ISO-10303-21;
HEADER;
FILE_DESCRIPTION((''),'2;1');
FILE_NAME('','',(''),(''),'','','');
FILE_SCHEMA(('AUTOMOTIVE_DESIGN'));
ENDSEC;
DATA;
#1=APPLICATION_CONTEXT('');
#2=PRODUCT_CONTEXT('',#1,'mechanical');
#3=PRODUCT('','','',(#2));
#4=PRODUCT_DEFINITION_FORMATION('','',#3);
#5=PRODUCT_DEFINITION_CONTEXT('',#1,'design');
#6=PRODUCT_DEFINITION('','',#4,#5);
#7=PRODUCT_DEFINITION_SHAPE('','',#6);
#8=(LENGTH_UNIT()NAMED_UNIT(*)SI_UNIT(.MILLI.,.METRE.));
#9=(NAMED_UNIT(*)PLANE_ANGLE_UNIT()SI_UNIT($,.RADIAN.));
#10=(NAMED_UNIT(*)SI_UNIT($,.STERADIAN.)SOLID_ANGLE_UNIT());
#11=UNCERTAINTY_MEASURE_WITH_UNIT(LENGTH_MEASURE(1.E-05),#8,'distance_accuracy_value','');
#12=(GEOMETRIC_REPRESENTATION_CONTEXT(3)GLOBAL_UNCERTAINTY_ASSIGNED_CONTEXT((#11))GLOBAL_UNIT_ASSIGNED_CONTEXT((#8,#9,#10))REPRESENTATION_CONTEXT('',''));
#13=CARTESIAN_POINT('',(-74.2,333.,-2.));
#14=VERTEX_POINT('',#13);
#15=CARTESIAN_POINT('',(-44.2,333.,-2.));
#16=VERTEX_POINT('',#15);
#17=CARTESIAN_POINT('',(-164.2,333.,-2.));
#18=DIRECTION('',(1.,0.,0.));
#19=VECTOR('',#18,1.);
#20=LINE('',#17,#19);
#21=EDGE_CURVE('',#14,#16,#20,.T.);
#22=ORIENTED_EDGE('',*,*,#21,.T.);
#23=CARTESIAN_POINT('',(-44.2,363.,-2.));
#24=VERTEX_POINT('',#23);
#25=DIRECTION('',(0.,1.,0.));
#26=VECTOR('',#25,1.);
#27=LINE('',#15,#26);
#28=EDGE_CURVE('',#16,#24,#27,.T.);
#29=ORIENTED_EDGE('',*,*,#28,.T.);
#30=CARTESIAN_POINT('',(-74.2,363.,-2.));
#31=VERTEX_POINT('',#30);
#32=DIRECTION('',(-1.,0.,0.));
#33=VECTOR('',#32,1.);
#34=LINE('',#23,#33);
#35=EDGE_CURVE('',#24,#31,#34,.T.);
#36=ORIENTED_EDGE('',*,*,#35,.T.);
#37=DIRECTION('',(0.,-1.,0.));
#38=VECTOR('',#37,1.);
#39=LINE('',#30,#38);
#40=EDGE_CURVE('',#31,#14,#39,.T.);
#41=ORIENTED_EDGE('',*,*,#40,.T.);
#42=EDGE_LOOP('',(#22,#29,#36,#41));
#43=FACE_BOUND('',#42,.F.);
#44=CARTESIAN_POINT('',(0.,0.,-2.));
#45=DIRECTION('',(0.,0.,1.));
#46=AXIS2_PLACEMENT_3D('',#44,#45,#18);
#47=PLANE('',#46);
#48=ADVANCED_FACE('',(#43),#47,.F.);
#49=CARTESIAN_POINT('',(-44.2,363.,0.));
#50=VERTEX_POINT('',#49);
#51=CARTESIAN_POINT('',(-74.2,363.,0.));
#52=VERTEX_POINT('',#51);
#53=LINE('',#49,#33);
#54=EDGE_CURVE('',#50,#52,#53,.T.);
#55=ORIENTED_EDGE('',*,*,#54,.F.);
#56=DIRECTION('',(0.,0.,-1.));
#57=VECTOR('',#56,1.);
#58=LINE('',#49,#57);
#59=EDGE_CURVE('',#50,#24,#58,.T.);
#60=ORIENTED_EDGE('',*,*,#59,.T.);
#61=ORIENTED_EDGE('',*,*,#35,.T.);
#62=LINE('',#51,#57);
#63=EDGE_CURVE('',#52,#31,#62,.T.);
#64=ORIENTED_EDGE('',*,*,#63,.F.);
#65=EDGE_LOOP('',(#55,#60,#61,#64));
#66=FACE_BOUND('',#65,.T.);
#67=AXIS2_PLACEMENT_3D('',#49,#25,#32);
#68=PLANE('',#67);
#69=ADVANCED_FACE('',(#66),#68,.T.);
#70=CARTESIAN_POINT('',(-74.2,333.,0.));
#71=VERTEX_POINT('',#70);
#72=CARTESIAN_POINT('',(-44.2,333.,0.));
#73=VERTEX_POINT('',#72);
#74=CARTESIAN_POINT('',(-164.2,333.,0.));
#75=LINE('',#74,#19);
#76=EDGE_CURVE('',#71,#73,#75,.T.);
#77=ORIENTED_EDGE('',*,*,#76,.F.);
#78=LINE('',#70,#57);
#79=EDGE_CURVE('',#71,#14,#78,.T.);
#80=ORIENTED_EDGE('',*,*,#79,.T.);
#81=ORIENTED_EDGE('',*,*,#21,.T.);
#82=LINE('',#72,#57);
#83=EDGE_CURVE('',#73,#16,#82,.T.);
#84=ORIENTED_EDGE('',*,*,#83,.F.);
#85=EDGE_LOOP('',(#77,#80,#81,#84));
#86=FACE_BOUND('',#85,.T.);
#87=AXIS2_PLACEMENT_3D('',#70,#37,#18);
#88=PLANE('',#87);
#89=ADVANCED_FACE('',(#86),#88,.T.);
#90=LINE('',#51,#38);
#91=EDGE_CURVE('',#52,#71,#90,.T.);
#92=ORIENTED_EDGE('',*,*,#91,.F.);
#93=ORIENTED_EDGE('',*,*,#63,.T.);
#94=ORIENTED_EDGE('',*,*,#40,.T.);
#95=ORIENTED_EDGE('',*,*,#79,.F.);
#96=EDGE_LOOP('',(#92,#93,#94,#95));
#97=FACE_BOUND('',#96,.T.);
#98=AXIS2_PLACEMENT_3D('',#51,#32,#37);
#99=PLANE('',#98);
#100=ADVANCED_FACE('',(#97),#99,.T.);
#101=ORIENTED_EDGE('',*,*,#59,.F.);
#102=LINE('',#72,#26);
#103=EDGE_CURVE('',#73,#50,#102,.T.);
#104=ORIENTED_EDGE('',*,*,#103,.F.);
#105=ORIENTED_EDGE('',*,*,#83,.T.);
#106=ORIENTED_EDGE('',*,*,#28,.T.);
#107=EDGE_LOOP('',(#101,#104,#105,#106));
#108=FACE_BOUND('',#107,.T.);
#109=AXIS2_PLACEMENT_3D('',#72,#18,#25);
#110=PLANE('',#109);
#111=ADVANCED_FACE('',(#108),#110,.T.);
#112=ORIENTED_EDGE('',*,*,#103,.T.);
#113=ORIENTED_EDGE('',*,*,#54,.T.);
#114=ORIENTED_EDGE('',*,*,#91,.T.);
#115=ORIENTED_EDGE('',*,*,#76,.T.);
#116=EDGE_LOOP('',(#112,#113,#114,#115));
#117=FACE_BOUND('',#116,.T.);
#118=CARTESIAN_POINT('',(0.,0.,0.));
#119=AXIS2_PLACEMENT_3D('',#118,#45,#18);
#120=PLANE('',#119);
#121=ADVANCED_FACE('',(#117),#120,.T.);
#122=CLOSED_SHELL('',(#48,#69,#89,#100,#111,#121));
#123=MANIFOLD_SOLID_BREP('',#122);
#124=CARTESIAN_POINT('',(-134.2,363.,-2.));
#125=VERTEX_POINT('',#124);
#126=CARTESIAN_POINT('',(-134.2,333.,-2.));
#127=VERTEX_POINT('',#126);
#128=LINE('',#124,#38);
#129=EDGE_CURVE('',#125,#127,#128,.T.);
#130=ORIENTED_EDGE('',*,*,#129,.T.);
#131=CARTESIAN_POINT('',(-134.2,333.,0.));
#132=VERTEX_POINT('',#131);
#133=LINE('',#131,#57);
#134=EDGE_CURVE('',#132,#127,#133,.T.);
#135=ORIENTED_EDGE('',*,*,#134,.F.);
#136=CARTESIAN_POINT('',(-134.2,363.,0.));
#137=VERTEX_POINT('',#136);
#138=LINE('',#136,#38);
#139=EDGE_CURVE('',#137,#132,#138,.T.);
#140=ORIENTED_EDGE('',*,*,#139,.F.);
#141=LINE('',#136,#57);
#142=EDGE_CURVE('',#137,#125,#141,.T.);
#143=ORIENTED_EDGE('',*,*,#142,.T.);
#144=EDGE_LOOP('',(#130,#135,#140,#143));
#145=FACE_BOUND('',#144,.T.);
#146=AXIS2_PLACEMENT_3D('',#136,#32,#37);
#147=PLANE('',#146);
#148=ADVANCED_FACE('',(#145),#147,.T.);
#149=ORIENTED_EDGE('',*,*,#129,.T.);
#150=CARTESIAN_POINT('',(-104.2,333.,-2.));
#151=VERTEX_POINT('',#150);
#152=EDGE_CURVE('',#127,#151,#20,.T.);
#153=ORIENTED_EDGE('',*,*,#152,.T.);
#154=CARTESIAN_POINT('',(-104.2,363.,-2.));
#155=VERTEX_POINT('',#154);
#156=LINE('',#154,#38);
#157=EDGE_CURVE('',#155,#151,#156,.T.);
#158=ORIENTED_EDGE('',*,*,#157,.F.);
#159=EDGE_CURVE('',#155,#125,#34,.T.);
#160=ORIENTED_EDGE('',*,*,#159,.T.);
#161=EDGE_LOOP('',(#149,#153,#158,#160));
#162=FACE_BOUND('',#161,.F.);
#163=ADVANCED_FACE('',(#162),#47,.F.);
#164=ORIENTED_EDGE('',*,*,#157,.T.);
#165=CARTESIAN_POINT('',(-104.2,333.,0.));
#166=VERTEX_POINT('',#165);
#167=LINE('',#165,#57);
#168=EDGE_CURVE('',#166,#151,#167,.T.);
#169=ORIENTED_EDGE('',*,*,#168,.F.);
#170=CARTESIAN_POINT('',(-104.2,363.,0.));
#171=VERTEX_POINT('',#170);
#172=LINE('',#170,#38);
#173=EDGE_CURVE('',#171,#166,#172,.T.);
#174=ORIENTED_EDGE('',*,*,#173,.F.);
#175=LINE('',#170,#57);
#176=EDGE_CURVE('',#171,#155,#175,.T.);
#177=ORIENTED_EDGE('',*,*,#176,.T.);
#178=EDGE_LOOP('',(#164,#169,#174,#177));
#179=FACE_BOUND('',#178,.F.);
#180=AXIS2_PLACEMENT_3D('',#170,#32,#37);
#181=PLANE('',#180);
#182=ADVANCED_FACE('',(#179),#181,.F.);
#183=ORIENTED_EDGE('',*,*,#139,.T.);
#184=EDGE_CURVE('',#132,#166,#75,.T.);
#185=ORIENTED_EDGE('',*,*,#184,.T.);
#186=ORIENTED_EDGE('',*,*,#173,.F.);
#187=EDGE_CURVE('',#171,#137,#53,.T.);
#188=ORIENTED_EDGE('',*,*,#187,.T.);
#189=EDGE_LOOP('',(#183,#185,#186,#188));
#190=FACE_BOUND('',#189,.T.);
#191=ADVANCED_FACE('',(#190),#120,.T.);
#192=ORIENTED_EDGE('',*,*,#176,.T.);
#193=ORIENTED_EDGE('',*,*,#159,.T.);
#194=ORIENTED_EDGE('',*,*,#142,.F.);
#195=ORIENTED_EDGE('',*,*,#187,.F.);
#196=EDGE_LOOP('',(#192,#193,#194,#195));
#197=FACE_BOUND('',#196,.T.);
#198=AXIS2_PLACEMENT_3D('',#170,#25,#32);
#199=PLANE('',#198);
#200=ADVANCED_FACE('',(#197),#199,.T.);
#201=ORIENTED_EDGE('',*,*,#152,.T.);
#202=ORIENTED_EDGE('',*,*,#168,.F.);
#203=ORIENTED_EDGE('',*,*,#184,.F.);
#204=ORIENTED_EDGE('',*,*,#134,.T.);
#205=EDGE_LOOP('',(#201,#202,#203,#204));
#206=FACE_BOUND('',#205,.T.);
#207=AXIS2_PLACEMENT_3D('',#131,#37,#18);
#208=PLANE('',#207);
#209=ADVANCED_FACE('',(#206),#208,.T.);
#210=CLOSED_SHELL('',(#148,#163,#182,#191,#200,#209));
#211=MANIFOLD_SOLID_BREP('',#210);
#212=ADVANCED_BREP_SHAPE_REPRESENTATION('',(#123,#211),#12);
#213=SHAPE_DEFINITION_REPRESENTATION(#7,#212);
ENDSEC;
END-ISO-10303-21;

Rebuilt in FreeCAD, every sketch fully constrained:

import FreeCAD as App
import Part
import Sketcher
from FreeCAD import Vector

doc = App.newDocument("Part")
body = doc.addObject("PartDesign::Body", "Body")
body.AllowCompound = True

sketch1 = body.newObject("Sketcher::SketchObject", "Sketch")
sketch1.AttachmentSupport = (doc.getObject("XY_Plane"), [""])
sketch1.MapMode = "FlatFace"
sketch1.addGeometry(Part.LineSegment(Vector(-134, 363, 0), Vector(-134, 333, 0)), False)
sketch1.addGeometry(Part.LineSegment(Vector(-134, 333, 0), Vector(-104, 333, 0)), False)
sketch1.addGeometry(Part.LineSegment(Vector(-104, 333, 0), Vector(-104, 363, 0)), False)
sketch1.addGeometry(Part.LineSegment(Vector(-104, 363, 0), Vector(-134, 363, 0)), False)
sketch1.addGeometry(Part.LineSegment(Vector(-74, 363, 0), Vector(-74, 333, 0)), False)
sketch1.addGeometry(Part.LineSegment(Vector(-74, 333, 0), Vector(-44, 333, 0)), False)
sketch1.addGeometry(Part.LineSegment(Vector(-44, 333, 0), Vector(-44, 363, 0)), False)
sketch1.addGeometry(Part.LineSegment(Vector(-44, 363, 0), Vector(-74, 363, 0)), False)
sketch1.addConstraint(Sketcher.Constraint("Coincident", 0, 2, 1, 1))
sketch1.addConstraint(Sketcher.Constraint("Coincident", 1, 2, 2, 1))
sketch1.addConstraint(Sketcher.Constraint("Coincident", 2, 2, 3, 1))
sketch1.addConstraint(Sketcher.Constraint("Coincident", 3, 2, 0, 1))
sketch1.addConstraint(Sketcher.Constraint("Coincident", 4, 2, 5, 1))
sketch1.addConstraint(Sketcher.Constraint("Coincident", 5, 2, 6, 1))
sketch1.addConstraint(Sketcher.Constraint("Coincident", 6, 2, 7, 1))
sketch1.addConstraint(Sketcher.Constraint("Coincident", 7, 2, 4, 1))
sketch1.addConstraint(Sketcher.Constraint("Vertical", 0))
sketch1.addConstraint(Sketcher.Constraint("Horizontal", 1))
sketch1.addConstraint(Sketcher.Constraint("Vertical", 2))
sketch1.addConstraint(Sketcher.Constraint("Horizontal", 3))
sketch1.addConstraint(Sketcher.Constraint("Vertical", 4))
sketch1.addConstraint(Sketcher.Constraint("Horizontal", 5))
sketch1.addConstraint(Sketcher.Constraint("Vertical", 6))
sketch1.addConstraint(Sketcher.Constraint("Horizontal", 7))
sketch1.addConstraint(Sketcher.Constraint("Horizontal", 1, 2, 4, 2))
sketch1.addConstraint(Sketcher.Constraint("Horizontal", 3, 2, 6, 2))
sketch1.addConstraint(Sketcher.Constraint("Equal", 3, 5))
sketch1.addConstraint(Sketcher.Constraint("Equal", 7, 0))
sketch1.addConstraint(Sketcher.Constraint("DistanceX", 1, 1, 1, 2, 30.0))
sketch1.addConstraint(Sketcher.Constraint("DistanceX", 1, 2, 4, 2, 30.0))
sketch1.addConstraint(Sketcher.Constraint("DistanceY", -1, 1, 0, 2, 333.0))
sketch1.addConstraint(Sketcher.Constraint("DistanceX", 0, 2, -1, 1, 134.2))
pad1 = body.newObject("PartDesign::Pad", "Pad")
pad1.Profile = sketch1
pad1.Length = 2
pad1.Reversed = True

doc.recompute()
